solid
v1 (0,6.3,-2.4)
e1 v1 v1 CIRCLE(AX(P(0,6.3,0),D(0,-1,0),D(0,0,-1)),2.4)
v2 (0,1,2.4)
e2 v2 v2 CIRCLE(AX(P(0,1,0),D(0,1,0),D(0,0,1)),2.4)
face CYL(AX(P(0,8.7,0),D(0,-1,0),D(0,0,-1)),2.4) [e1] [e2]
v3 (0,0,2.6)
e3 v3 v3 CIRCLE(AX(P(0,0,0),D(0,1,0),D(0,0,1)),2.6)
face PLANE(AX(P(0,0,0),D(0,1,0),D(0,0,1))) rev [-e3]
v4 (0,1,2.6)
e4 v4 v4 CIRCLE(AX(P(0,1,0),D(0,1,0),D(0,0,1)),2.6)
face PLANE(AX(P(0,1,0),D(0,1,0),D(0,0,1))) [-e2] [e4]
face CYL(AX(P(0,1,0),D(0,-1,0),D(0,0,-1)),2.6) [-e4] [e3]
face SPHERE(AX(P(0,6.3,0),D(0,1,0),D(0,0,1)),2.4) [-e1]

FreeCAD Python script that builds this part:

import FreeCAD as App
import Part
import Sketcher


def edges_at(feature, points):
    """Names of the edges that pass closest to the given points."""
    edges = feature.Shape.Edges
    near = lambda p: min(range(len(edges)), key=lambda i: edges[i].distToShape(Part.Vertex(*p))[0])
    return sorted({f"Edge{near(p) + 1}" for p in points})

doc = App.newDocument("Part")
params = doc.addObject("Spreadsheet::Sheet", "Params")
for row, (alias, value) in enumerate([
    ("sketch1_diameter", "4.8 mm"),
    ("pad1_length", "8.7 mm"),
    ("fillet_radius", "2.4 mm"),
    ("sketch2_diameter", "5.2 mm"),
    ("pad2_length", "1 mm"),
], start=1):
    params.set(f"A{row}", alias)
    params.set(f"B{row}", "=" + value)
    params.setAlias(f"B{row}", alias)

body = doc.addObject("PartDesign::Body", "Body")

# Sketch on XZ plane
sketch1 = doc.addObject("Sketcher::SketchObject", "Sketch")
body.addObject(sketch1)
sketch1.AttachmentSupport = (doc.XZ_Plane, [""])
sketch1.MapMode = "FlatFace"
sketch1.addGeometry(Part.Circle(App.Vector(0, 0, 0), App.Vector(0, 0, 1), 2.4), False)
sketch1.addConstraint([
    Sketcher.Constraint("Coincident", 0, 3, -1, 1),
    Sketcher.Constraint("Diameter", 0, 4.8),
])
sketch1.setExpression("Constraints[1]", "Params.sketch1_diameter")
pad1 = doc.addObject("PartDesign::Pad", "Pad")
body.addObject(pad1)
pad1.Profile = sketch1
pad1.setExpression("Length", "Params.pad1_length")
pad1.Reversed = True
doc.recompute()

fillet = doc.addObject("PartDesign::Fillet", "Fillet")
body.addObject(fillet)
fillet.Base = (pad1, edges_at(pad1, [(0, 8.7, -2.4)]))
fillet.setExpression("Radius", "Params.fillet_radius")

# Sketch on XZ plane
sketch2 = doc.addObject("Sketcher::SketchObject", "Sketch001")
body.addObject(sketch2)
sketch2.AttachmentSupport = (doc.XZ_Plane, [""])
sketch2.MapMode = "FlatFace"
sketch2.addGeometry(Part.Circle(App.Vector(0, 0, 0), App.Vector(0, 0, 1), 2.6), False)
sketch2.addConstraint([
    Sketcher.Constraint("Coincident", 0, 3, -1, 1),
    Sketcher.Constraint("Diameter", 0, 5.2),
])
sketch2.setExpression("Constraints[1]", "Params.sketch2_diameter")
pad2 = doc.addObject("PartDesign::Pad", "Pad001")
body.addObject(pad2)
pad2.Profile = sketch2
pad2.setExpression("Length", "Params.pad2_length")
pad2.Reversed = True

doc.recompute()
